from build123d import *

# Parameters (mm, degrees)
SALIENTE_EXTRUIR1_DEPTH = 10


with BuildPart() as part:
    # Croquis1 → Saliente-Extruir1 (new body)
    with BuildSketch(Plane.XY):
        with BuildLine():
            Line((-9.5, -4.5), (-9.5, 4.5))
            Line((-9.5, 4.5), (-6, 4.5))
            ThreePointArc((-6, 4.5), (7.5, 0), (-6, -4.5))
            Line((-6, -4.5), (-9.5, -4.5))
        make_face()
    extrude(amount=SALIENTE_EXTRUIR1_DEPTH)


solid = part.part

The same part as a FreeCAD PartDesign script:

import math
import FreeCAD as App
import Part
import Sketcher

doc = App.newDocument("Part")
body = doc.addObject("PartDesign::Body", "Body")

# Sketch on XY plane
sketch1 = doc.addObject("Sketcher::SketchObject", "Sketch")
body.addObject(sketch1)
sketch1.AttachmentSupport = (doc.XY_Plane, [""])
sketch1.MapMode = "FlatFace"
sketch1.addGeometry([
    Part.LineSegment(App.Vector(-9.5, 4.5, 0), App.Vector(-9.5, -4.5, 0)),
    Part.LineSegment(App.Vector(-9.5, -4.5, 0), App.Vector(-6, -4.5, 0)),
    Part.ArcOfCircle(Part.Circle(App.Vector(0, 0, 0), App.Vector(0, 0, 1), 7.5), math.radians(-143.130102), math.radians(143.130102)),
    Part.LineSegment(App.Vector(-6, 4.5, 0), App.Vector(-9.5, 4.5, 0)),
], False)
sketch1.addConstraint([
    Sketcher.Constraint("Coincident", 0, 2, 1, 1),
    Sketcher.Constraint("Coincident", 1, 2, 2, 1),
    Sketcher.Constraint("Coincident", 2, 2, 3, 1),
    Sketcher.Constraint("Coincident", 3, 2, 0, 1),
    Sketcher.Constraint("Vertical", 0),
    Sketcher.Constraint("Horizontal", 1),
    Sketcher.Constraint("Horizontal", 3),
    Sketcher.Constraint("Coincident", 2, 3, -1, 1),
    Sketcher.Constraint("Vertical", 1, 2, 2, 2),
    Sketcher.Constraint("Radius", 2, 7.5),
    Sketcher.Constraint("DistanceY", 0, 2, 0, 1, 9.0),
    Sketcher.Constraint("DistanceX", 1, 1, 1, 2, 3.5),
])
pad1 = doc.addObject("PartDesign::Pad", "Pad")
body.addObject(pad1)
pad1.Profile = sketch1
pad1.Length = 10

doc.recompute()
